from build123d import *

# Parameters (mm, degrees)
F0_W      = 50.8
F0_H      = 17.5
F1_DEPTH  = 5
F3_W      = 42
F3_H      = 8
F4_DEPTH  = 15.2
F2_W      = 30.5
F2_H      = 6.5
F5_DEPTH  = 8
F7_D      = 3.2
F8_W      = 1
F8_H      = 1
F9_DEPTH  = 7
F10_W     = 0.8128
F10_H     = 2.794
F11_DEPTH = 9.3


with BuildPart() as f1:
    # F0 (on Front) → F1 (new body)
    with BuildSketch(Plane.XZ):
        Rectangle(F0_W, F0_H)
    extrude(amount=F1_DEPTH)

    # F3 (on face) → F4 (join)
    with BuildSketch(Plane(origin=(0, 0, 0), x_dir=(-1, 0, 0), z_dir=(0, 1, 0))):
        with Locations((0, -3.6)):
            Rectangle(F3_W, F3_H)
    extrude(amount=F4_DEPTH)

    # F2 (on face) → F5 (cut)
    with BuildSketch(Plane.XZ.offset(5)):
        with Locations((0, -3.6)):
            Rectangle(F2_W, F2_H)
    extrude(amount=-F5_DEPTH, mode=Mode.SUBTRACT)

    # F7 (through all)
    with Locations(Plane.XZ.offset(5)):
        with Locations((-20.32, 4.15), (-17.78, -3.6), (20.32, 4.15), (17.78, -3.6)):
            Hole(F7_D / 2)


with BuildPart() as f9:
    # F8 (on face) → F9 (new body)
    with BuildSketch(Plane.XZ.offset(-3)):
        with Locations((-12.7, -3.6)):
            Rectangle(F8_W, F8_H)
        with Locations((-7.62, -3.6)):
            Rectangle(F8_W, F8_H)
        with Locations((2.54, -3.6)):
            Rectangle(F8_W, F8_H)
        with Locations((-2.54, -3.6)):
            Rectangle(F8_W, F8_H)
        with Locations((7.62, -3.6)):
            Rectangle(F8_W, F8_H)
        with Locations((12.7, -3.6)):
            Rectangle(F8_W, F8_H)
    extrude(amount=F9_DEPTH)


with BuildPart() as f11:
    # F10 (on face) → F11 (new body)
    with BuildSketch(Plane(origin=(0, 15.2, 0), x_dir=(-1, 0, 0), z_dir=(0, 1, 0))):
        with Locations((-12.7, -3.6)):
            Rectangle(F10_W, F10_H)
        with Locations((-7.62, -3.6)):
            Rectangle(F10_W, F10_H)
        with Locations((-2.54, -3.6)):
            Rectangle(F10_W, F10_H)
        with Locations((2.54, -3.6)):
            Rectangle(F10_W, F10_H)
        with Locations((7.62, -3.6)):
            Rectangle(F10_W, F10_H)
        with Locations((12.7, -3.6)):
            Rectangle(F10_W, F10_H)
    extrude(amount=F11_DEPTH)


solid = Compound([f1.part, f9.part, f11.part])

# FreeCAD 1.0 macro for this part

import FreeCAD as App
import Part
import Sketcher
from FreeCAD import Vector
Q = App.Units.Quantity

doc = App.newDocument("Part")
body = doc.addObject("PartDesign::Body", "Body")

sketch1 = body.newObject("Sketcher::SketchObject", "Sketch")
sketch1.AttachmentSupport = (doc.getObject("XZ_Plane"), [""])
sketch1.MapMode = "FlatFace"
sketch1.addGeometry([
    Part.LineSegment(Vector(-25, 9, 0), Vector(-25, -9, 0)),
    Part.LineSegment(Vector(-25, -9, 0), Vector(25, -9, 0)),
    Part.LineSegment(Vector(25, -9, 0), Vector(25, 9, 0)),
    Part.LineSegment(Vector(25, 9, 0), Vector(-25, 9, 0)),
], False)
sketch1.addConstraint([
    Sketcher.Constraint("Coincident", 0, 2, 1, 1),
    Sketcher.Constraint("Coincident", 1, 2, 2, 1),
    Sketcher.Constraint("Coincident", 2, 2, 3, 1),
    Sketcher.Constraint("Coincident", 3, 2, 0, 1),
    Sketcher.Constraint("Vertical", 0),
    Sketcher.Constraint("Horizontal", 1),
    Sketcher.Constraint("Vertical", 2),
    Sketcher.Constraint("Horizontal", 3),
    Sketcher.Constraint("Symmetric", 0, 2, 2, 2, -1, 1),
    Sketcher.Constraint("DistanceX", 1, 1, 1, 2, Q("50.8 mm")),
    Sketcher.Constraint("DistanceY", 0, 2, 0, 1, Q("17.5 mm")),
])
pad1 = body.newObject("PartDesign::Pad", "Pad")
pad1.Profile = sketch1
pad1.Length = 5

sketch2 = body.newObject("Sketcher::SketchObject", "Sketch001")
sketch2.AttachmentSupport = (doc.getObject("XZ_Plane"), [""])
sketch2.MapMode = "FlatFace"
sketch2.addGeometry([
    Part.LineSegment(Vector(21, 0, 0), Vector(21, -8, 0)),
    Part.LineSegment(Vector(21, -8, 0), Vector(-21, -8, 0)),
    Part.LineSegment(Vector(-21, -8, 0), Vector(-21, 0, 0)),
    Part.LineSegment(Vector(-21, 0, 0), Vector(21, 0, 0)),
], False)
sketch2.addConstraint([
    Sketcher.Constraint("Coincident", 0, 2, 1, 1),
    Sketcher.Constraint("Coincident", 1, 2, 2, 1),
    Sketcher.Constraint("Coincident", 2, 2, 3, 1),
    Sketcher.Constraint("Coincident", 3, 2, 0, 1),
    Sketcher.Constraint("Vertical", 0),
    Sketcher.Constraint("Horizontal", 1),
    Sketcher.Constraint("Vertical", 2),
    Sketcher.Constraint("Horizontal", 3),
    Sketcher.Constraint("DistanceX", 1, 2, 1, 1, Q("42 mm")),
    Sketcher.Constraint("DistanceY", 0, 2, 0, 1, Q("8 mm")),
    Sketcher.Constraint("DistanceX", -1, 1, 0, 2, Q("21 mm")),
    Sketcher.Constraint("DistanceY", 0, 2, -1, 1, Q("7.6 mm")),
])
pad2 = body.newObject("PartDesign::Pad", "Pad001")
pad2.Profile = sketch2
pad2.Length = 15.2
pad2.Reversed = True

sketch3 = body.newObject("Sketcher::SketchObject", "Sketch002")
sketch3.AttachmentSupport = (doc.getObject("XZ_Plane"), [""])
sketch3.MapMode = "FlatFace"
sketch3.AttachmentOffset = App.Placement(Vector(0, 0, 5), App.Rotation())
sketch3.addGeometry([
    Part.LineSegment(Vector(-15, 0, 0), Vector(-15, -7, 0)),
    Part.LineSegment(Vector(-15, -7, 0), Vector(15, -7, 0)),
    Part.LineSegment(Vector(15, -7, 0), Vector(15, 0, 0)),
    Part.LineSegment(Vector(15, 0, 0), Vector(-15, 0, 0)),
], False)
sketch3.addConstraint([
    Sketcher.Constraint("Coincident", 0, 2, 1, 1),
    Sketcher.Constraint("Coincident", 1, 2, 2, 1),
    Sketcher.Constraint("Coincident", 2, 2, 3, 1),
    Sketcher.Constraint("Coincident", 3, 2, 0, 1),
    Sketcher.Constraint("Vertical", 0),
    Sketcher.Constraint("Horizontal", 1),
    Sketcher.Constraint("Vertical", 2),
    Sketcher.Constraint("Horizontal", 3),
    Sketcher.Constraint("DistanceX", 1, 1, 1, 2, Q("30.5 mm")),
    Sketcher.Constraint("DistanceY", 0, 2, 0, 1, Q("6.5 mm")),
    Sketcher.Constraint("DistanceX", 0, 2, -1, 1, Q("15.25 mm")),
    Sketcher.Constraint("DistanceY", 0, 2, -1, 1, Q("6.85 mm")),
])
pocket1 = body.newObject("PartDesign::Pocket", "Pocket")
pocket1.Profile = sketch3
pocket1.Length = 8

sketch4 = body.newObject("Sketcher::SketchObject", "Sketch003")
sketch4.AttachmentSupport = (doc.getObject("XZ_Plane"), [""])
sketch4.MapMode = "FlatFace"
sketch4.AttachmentOffset = App.Placement(Vector(0, 0, 5), App.Rotation())
sketch4.addGeometry([
    Part.Circle(Vector(-20.3, 4.2, 0), Vector(0, 0, 1), 1.6),
    Part.Circle(Vector(-17.8, -3.6, 0), Vector(0, 0, 1), 1.6),
    Part.Circle(Vector(20.3, 4.2, 0), Vector(0, 0, 1), 1.6),
    Part.Circle(Vector(17.8, -3.6, 0), Vector(0, 0, 1), 1.6),
], False)
sketch4.addConstraint([
    Sketcher.Constraint("Equal", 0, 1),
    Sketcher.Constraint("Equal", 1, 2),
    Sketcher.Constraint("Equal", 2, 3),
    Sketcher.Constraint("Symmetric", 0, 3, 2, 3, -2),
    Sketcher.Constraint("Symmetric", 1, 3, 3, 3, -2),
    Sketcher.Constraint("Diameter", 0, Q("3.2 mm")),
    Sketcher.Constraint("DistanceY", 1, 3, -1, 1, Q("3.6 mm")),
    Sketcher.Constraint("DistanceX", 1, 3, 2, 3, Q("38.1 mm")),
    Sketcher.Constraint("DistanceX", 0, 3, -1, 1, Q("20.32 mm")),
    Sketcher.Constraint("DistanceY", -1, 1, 0, 3, Q("4.15 mm")),
])
doc.recompute()
hole = body.newObject("PartDesign::Hole", "Hole")
hole.Profile = sketch4
hole.ThreadType = "None"
hole.Diameter = 3.2
hole.DepthType = "ThroughAll"
body2 = doc.addObject("PartDesign::Body", "Body001")
body2.AllowCompound = True

sketch5 = body2.newObject("Sketcher::SketchObject", "Sketch004")
sketch5.AttachmentSupport = (doc.getObject("XZ_Plane001"), [""])
sketch5.MapMode = "FlatFace"
sketch5.AttachmentOffset = App.Placement(Vector(0, 0, -3), App.Rotation())
sketch5.addGeometry([
    Part.LineSegment(Vector(-13.2, -3.1, 0), Vector(-13.2, -4.1, 0)),
    Part.LineSegment(Vector(-13.2, -4.1, 0), Vector(-12.2, -4.1, 0)),
    Part.LineSegment(Vector(-12.2, -4.1, 0), Vector(-12.2, -3.1, 0)),
    Part.LineSegment(Vector(-12.2, -3.1, 0), Vector(-13.2, -3.1, 0)),
    Part.LineSegment(Vector(-8.1, -3.1, 0), Vector(-8.1, -4.1, 0)),
    Part.LineSegment(Vector(-8.1, -4.1, 0), Vector(-7.1, -4.1, 0)),
    Part.LineSegment(Vector(-7.1, -4.1, 0), Vector(-7.1, -3.1, 0)),
    Part.LineSegment(Vector(-7.1, -3.1, 0), Vector(-8.1, -3.1, 0)),
    Part.LineSegment(Vector(2, -3.1, 0), Vector(2, -4.1, 0)),
    Part.LineSegment(Vector(2, -4.1, 0), Vector(3, -4.1, 0)),
    Part.LineSegment(Vector(3, -4.1, 0), Vector(3, -3.1, 0)),
    Part.LineSegment(Vector(3, -3.1, 0), Vector(2, -3.1, 0)),
    Part.LineSegment(Vector(-3, -3.1, 0), Vector(-3, -4.1, 0)),
    Part.LineSegment(Vector(-3, -4.1, 0), Vector(-2, -4.1, 0)),
    Part.LineSegment(Vector(-2, -4.1, 0), Vector(-2, -3.1, 0)),
    Part.LineSegment(Vector(-2, -3.1, 0), Vector(-3, -3.1, 0)),
    Part.LineSegment(Vector(7.1, -3.1, 0), Vector(7.1, -4.1, 0)),
    Part.LineSegment(Vector(7.1, -4.1, 0), Vector(8.1, -4.1, 0)),
    Part.LineSegment(Vector(8.1, -4.1, 0), Vector(8.1, -3.1, 0)),
    Part.LineSegment(Vector(8.1, -3.1, 0), Vector(7.1, -3.1, 0)),
    Part.LineSegment(Vector(12.2, -3.1, 0), Vector(12.2, -4.1, 0)),
    Part.LineSegment(Vector(12.2, -4.1, 0), Vector(13.2, -4.1, 0)),
    Part.LineSegment(Vector(13.2, -4.1, 0), Vector(13.2, -3.1, 0)),
    Part.LineSegment(Vector(13.2, -3.1, 0), Vector(12.2, -3.1, 0)),
], False)
sketch5.addConstraint([
    Sketcher.Constraint("Coincident", 0, 2, 1, 1),
    Sketcher.Constraint("Coincident", 1, 2, 2, 1),
    Sketcher.Constraint("Coincident", 2, 2, 3, 1),
    Sketcher.Constraint("Coincident", 3, 2, 0, 1),
    Sketcher.Constraint("Coincident", 4, 2, 5, 1),
    Sketcher.Constraint("Coincident", 5, 2, 6, 1),
    Sketcher.Constraint("Coincident", 6, 2, 7, 1),
    Sketcher.Constraint("Coincident", 7, 2, 4, 1),
    Sketcher.Constraint("Coincident", 8, 2, 9, 1),
    Sketcher.Constraint("Coincident", 9, 2, 10, 1),
    Sketcher.Constraint("Coincident", 10, 2, 11, 1),
    Sketcher.Constraint("Coincident", 11, 2, 8, 1),
    Sketcher.Constraint("Coincident", 12, 2, 13, 1),
    Sketcher.Constraint("Coincident", 13, 2, 14, 1),
    Sketcher.Constraint("Coincident", 14, 2, 15, 1),
    Sketcher.Constraint("Coincident", 15, 2, 12, 1),
    Sketcher.Constraint("Coincident", 16, 2, 17, 1),
    Sketcher.Constraint("Coincident", 17, 2, 18, 1),
    Sketcher.Constraint("Coincident", 18, 2, 19, 1),
    Sketcher.Constraint("Coincident", 19, 2, 16, 1),
    Sketcher.Constraint("Coincident", 20, 2, 21, 1),
    Sketcher.Constraint("Coincident", 21, 2, 22, 1),
    Sketcher.Constraint("Coincident", 22, 2, 23, 1),
    Sketcher.Constraint("Coincident", 23, 2, 20, 1),
    Sketcher.Constraint("Vertical", 0),
    Sketcher.Constraint("Horizontal", 1),
    Sketcher.Constraint("Vertical", 2),
    Sketcher.Constraint("Horizontal", 3),
    Sketcher.Constraint("Vertical", 4),
    Sketcher.Constraint("Horizontal", 5),
    Sketcher.Constraint("Vertical", 6),
    Sketcher.Constraint("Horizontal", 7),
    Sketcher.Constraint("Vertical", 8),
    Sketcher.Constraint("Horizontal", 9),
    Sketcher.Constraint("Vertical", 10),
    Sketcher.Constraint("Horizontal", 11),
    Sketcher.Constraint("Vertical", 12),
    Sketcher.Constraint("Horizontal", 13),
    Sketcher.Constraint("Vertical", 14),
    Sketcher.Constraint("Horizontal", 15),
    Sketcher.Constraint("Vertical", 16),
    Sketcher.Constraint("Horizontal", 17),
    Sketcher.Constraint("Vertical", 18),
    Sketcher.Constraint("Horizontal", 19),
    Sketcher.Constraint("Vertical", 20),
    Sketcher.Constraint("Horizontal", 21),
    Sketcher.Constraint("Vertical", 22),
    Sketcher.Constraint("Horizontal", 23),
    Sketcher.Constraint("Symmetric", 9, 2, 12, 2, -2),
    Sketcher.Constraint("Symmetric", 11, 2, 14, 2, -2),
    Sketcher.Constraint("Symmetric", 5, 2, 16, 2, -2),
    Sketcher.Constraint("Symmetric", 7, 2, 18, 2, -2),
    Sketcher.Constraint("Symmetric", 1, 2, 20, 2, -2),
    Sketcher.Constraint("Symmetric", 3, 2, 22, 2, -2),
    Sketcher.Constraint("Horizontal", 1, 2, 4, 2),
    Sketcher.Constraint("Horizontal", 3, 2, 6, 2),
    Sketcher.Constraint("Horizontal", 5, 2, 8, 2),
    Sketcher.Constraint("Horizontal", 7, 2, 10, 2),
    Sketcher.Constraint("Equal", 3, 5),
    Sketcher.Constraint("Equal", 7, 9),
    Sketcher.Constraint("Equal", 23, 0),
    Sketcher.Constraint("DistanceX", 1, 1, 1, 2, Q("1 mm")),
    Sketcher.Constraint("DistanceX", 0, 2, -1, 1, Q("13.2 mm")),
    Sketcher.Constraint("DistanceY", 0, 2, -1, 1, Q("4.1 mm")),
    Sketcher.Constraint("DistanceX", 4, 2, -1, 1, Q("8.12 mm")),
    Sketcher.Constraint("DistanceX", -1, 1, 8, 2, Q("2.04 mm")),
])
pad3 = body2.newObject("PartDesign::Pad", "Pad002")
pad3.Profile = sketch5
pad3.Length = 7
body3 = doc.addObject("PartDesign::Body", "Body002")
body3.AllowCompound = True

sketch6 = body3.newObject("Sketcher::SketchObject", "Sketch005")
sketch6.AttachmentSupport = (doc.getObject("XZ_Plane002"), [""])
sketch6.MapMode = "FlatFace"
sketch6.AttachmentOffset = App.Placement(Vector(0, 0, -15.2), App.Rotation())
sketch6.addGeometry([
    Part.LineSegment(Vector(13.1, -2.2, 0), Vector(13.1, -5, 0)),
    Part.LineSegment(Vector(13.1, -5, 0), Vector(12.3, -5, 0)),
    Part.LineSegment(Vector(12.3, -5, 0), Vector(12.3, -2.2, 0)),
    Part.LineSegment(Vector(12.3, -2.2, 0), Vector(13.1, -2.2, 0)),
    Part.LineSegment(Vector(8, -2.2, 0), Vector(8, -5, 0)),
    Part.LineSegment(Vector(8, -5, 0), Vector(7.2, -5, 0)),
    Part.LineSegment(Vector(7.2, -5, 0), Vector(7.2, -2.2, 0)),
    Part.LineSegment(Vector(7.2, -2.2, 0), Vector(8, -2.2, 0)),
    Part.LineSegment(Vector(2.9, -2.2, 0), Vector(2.9, -5, 0)),
    Part.LineSegment(Vector(2.9, -5, 0), Vector(2.1, -5, 0)),
    Part.LineSegment(Vector(2.1, -5, 0), Vector(2.1, -2.2, 0)),
    Part.LineSegment(Vector(2.1, -2.2, 0), Vector(2.9, -2.2, 0)),
    Part.LineSegment(Vector(-2.1, -2.2, 0), Vector(-2.1, -5, 0)),
    Part.LineSegment(Vector(-2.1, -5, 0), Vector(-2.9, -5, 0)),
    Part.LineSegment(Vector(-2.9, -5, 0), Vector(-2.9, -2.2, 0)),
    Part.LineSegment(Vector(-2.9, -2.2, 0), Vector(-2.1, -2.2, 0)),
    Part.LineSegment(Vector(-7.2, -2.2, 0), Vector(-7.2, -5, 0)),
    Part.LineSegment(Vector(-7.2, -5, 0), Vector(-8, -5, 0)),
    Part.LineSegment(Vector(-8, -5, 0), Vector(-8, -2.2, 0)),
    Part.LineSegment(Vector(-8, -2.2, 0), Vector(-7.2, -2.2, 0)),
    Part.LineSegment(Vector(-12.3, -2.2, 0), Vector(-12.3, -5, 0)),
    Part.LineSegment(Vector(-12.3, -5, 0), Vector(-13.1, -5, 0)),
    Part.LineSegment(Vector(-13.1, -5, 0), Vector(-13.1, -2.2, 0)),
    Part.LineSegment(Vector(-13.1, -2.2, 0), Vector(-12.3, -2.2, 0)),
], False)
sketch6.addConstraint([
    Sketcher.Constraint("Coincident", 0, 2, 1, 1),
    Sketcher.Constraint("Coincident", 1, 2, 2, 1),
    Sketcher.Constraint("Coincident", 2, 2, 3, 1),
    Sketcher.Constraint("Coincident", 3, 2, 0, 1),
    Sketcher.Constraint("Coincident", 4, 2, 5, 1),
    Sketcher.Constraint("Coincident", 5, 2, 6, 1),
    Sketcher.Constraint("Coincident", 6, 2, 7, 1),
    Sketcher.Constraint("Coincident", 7, 2, 4, 1),
    Sketcher.Constraint("Coincident", 8, 2, 9, 1),
    Sketcher.Constraint("Coincident", 9, 2, 10, 1),
    Sketcher.Constraint("Coincident", 10, 2, 11, 1),
    Sketcher.Constraint("Coincident", 11, 2, 8, 1),
    Sketcher.Constraint("Coincident", 12, 2, 13, 1),
    Sketcher.Constraint("Coincident", 13, 2, 14, 1),
    Sketcher.Constraint("Coincident", 14, 2, 15, 1),
    Sketcher.Constraint("Coincident", 15, 2, 12, 1),
    Sketcher.Constraint("Coincident", 16, 2, 17, 1),
    Sketcher.Constraint("Coincident", 17, 2, 18, 1),
    Sketcher.Constraint("Coincident", 18, 2, 19, 1),
    Sketcher.Constraint("Coincident", 19, 2, 16, 1),
    Sketcher.Constraint("Coincident", 20, 2, 21, 1),
    Sketcher.Constraint("Coincident", 21, 2, 22, 1),
    Sketcher.Constraint("Coincident", 22, 2, 23, 1),
    Sketcher.Constraint("Coincident", 23, 2, 20, 1),
    Sketcher.Constraint("Vertical", 0),
    Sketcher.Constraint("Horizontal", 1),
    Sketcher.Constraint("Vertical", 2),
    Sketcher.Constraint("Horizontal", 3),
    Sketcher.Constraint("Vertical", 4),
    Sketcher.Constraint("Horizontal", 5),
    Sketcher.Constraint("Vertical", 6),
    Sketcher.Constraint("Horizontal", 7),
    Sketcher.Constraint("Vertical", 8),
    Sketcher.Constraint("Horizontal", 9),
    Sketcher.Constraint("Vertical", 10),
    Sketcher.Constraint("Horizontal", 11),
    Sketcher.Constraint("Vertical", 12),
    Sketcher.Constraint("Horizontal", 13),
    Sketcher.Constraint("Vertical", 14),
    Sketcher.Constraint("Horizontal", 15),
    Sketcher.Constraint("Vertical", 16),
    Sketcher.Constraint("Horizontal", 17),
    Sketcher.Constraint("Vertical", 18),
    Sketcher.Constraint("Horizontal", 19),
    Sketcher.Constraint("Vertical", 20),
    Sketcher.Constraint("Horizontal", 21),
    Sketcher.Constraint("Vertical", 22),
    Sketcher.Constraint("Horizontal", 23),
    Sketcher.Constraint("Symmetric", 9, 2, 12, 2, -2),
    Sketcher.Constraint("Symmetric", 11, 2, 14, 2, -2),
    Sketcher.Constraint("Symmetric", 5, 2, 16, 2, -2),
    Sketcher.Constraint("Symmetric", 7, 2, 18, 2, -2),
    Sketcher.Constraint("Symmetric", 1, 2, 20, 2, -2),
    Sketcher.Constraint("Symmetric", 3, 2, 22, 2, -2),
    Sketcher.Constraint("Horizontal", 1, 2, 4, 2),
    Sketcher.Constraint("Horizontal", 3, 2, 6, 2),
    Sketcher.Constraint("Horizontal", 5, 2, 8, 2),
    Sketcher.Constraint("Horizontal", 7, 2, 10, 2),
    Sketcher.Constraint("Equal", 3, 5),
    Sketcher.Constraint("Equal", 7, 9),
    Sketcher.Constraint("DistanceY", 0, 2, 0, 1, Q("2.794 mm")),
    Sketcher.Constraint("DistanceX", 4, 2, 0, 2, Q("5.08 mm")),
    Sketcher.Constraint("DistanceX", 8, 2, 4, 2, Q("5.08 mm")),
    Sketcher.Constraint("DistanceX", 12, 2, 8, 2, Q("5.08 mm")),
    Sketcher.Constraint("DistanceX", 1, 2, 1, 1, Q("0.8128 mm")),
    Sketcher.Constraint("DistanceY", 0, 2, -1, 1, Q("4.997 mm")),
])
pad4 = body3.newObject("PartDesign::Pad", "Pad003")
pad4.Profile = sketch6
pad4.Length = 9.3
pad4.Reversed = True

doc.recompute()
